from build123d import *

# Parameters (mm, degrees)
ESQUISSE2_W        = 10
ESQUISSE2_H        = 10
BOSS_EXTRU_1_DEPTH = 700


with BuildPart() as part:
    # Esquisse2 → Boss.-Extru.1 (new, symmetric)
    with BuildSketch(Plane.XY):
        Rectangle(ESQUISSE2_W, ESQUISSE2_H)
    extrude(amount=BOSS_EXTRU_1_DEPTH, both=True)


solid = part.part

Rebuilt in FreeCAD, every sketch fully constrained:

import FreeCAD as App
import Part
import Sketcher
Q = App.Units.Quantity

doc = App.newDocument("Part")
body = doc.addObject("PartDesign::Body", "Body")

# Sketch on XY plane
sketch1 = body.newObject("Sketcher::SketchObject", "Sketch")
sketch1.AttachmentSupport = (doc.getObject("XY_Plane"), [""])
sketch1.MapMode = "FlatFace"
sketch1.addGeometry(Part.LineSegment(App.Vector(-5, 5, 0), App.Vector(-5, -5, 0)), False)
sketch1.addGeometry(Part.LineSegment(App.Vector(-5, -5, 0), App.Vector(5, -5, 0)), False)
sketch1.addGeometry(Part.LineSegment(App.Vector(5, -5, 0), App.Vector(5, 5, 0)), False)
sketch1.addGeometry(Part.LineSegment(App.Vector(5, 5, 0), App.Vector(-5, 5, 0)), False)
sketch1.addConstraint(Sketcher.Constraint("Coincident", 0, 2, 1, 1))
sketch1.addConstraint(Sketcher.Constraint("Coincident", 1, 2, 2, 1))
sketch1.addConstraint(Sketcher.Constraint("Coincident", 2, 2, 3, 1))
sketch1.addConstraint(Sketcher.Constraint("Coincident", 3, 2, 0, 1))
sketch1.addConstraint(Sketcher.Constraint("Vertical", 0))
sketch1.addConstraint(Sketcher.Constraint("Horizontal", 1))
sketch1.addConstraint(Sketcher.Constraint("Vertical", 2))
sketch1.addConstraint(Sketcher.Constraint("Horizontal", 3))
sketch1.addConstraint(Sketcher.Constraint("Symmetric", 0, 2, 2, 2, -1, 1))
sketch1.addConstraint(Sketcher.Constraint("Equal", 3, 0))
sketch1.addConstraint(Sketcher.Constraint("DistanceX", 1, 1, 1, 2, Q("10 mm")))
pad1 = body.newObject("PartDesign::Pad", "Pad")
pad1.Profile = sketch1
pad1.Length = 1400
pad1.Midplane = True

doc.recompute()
